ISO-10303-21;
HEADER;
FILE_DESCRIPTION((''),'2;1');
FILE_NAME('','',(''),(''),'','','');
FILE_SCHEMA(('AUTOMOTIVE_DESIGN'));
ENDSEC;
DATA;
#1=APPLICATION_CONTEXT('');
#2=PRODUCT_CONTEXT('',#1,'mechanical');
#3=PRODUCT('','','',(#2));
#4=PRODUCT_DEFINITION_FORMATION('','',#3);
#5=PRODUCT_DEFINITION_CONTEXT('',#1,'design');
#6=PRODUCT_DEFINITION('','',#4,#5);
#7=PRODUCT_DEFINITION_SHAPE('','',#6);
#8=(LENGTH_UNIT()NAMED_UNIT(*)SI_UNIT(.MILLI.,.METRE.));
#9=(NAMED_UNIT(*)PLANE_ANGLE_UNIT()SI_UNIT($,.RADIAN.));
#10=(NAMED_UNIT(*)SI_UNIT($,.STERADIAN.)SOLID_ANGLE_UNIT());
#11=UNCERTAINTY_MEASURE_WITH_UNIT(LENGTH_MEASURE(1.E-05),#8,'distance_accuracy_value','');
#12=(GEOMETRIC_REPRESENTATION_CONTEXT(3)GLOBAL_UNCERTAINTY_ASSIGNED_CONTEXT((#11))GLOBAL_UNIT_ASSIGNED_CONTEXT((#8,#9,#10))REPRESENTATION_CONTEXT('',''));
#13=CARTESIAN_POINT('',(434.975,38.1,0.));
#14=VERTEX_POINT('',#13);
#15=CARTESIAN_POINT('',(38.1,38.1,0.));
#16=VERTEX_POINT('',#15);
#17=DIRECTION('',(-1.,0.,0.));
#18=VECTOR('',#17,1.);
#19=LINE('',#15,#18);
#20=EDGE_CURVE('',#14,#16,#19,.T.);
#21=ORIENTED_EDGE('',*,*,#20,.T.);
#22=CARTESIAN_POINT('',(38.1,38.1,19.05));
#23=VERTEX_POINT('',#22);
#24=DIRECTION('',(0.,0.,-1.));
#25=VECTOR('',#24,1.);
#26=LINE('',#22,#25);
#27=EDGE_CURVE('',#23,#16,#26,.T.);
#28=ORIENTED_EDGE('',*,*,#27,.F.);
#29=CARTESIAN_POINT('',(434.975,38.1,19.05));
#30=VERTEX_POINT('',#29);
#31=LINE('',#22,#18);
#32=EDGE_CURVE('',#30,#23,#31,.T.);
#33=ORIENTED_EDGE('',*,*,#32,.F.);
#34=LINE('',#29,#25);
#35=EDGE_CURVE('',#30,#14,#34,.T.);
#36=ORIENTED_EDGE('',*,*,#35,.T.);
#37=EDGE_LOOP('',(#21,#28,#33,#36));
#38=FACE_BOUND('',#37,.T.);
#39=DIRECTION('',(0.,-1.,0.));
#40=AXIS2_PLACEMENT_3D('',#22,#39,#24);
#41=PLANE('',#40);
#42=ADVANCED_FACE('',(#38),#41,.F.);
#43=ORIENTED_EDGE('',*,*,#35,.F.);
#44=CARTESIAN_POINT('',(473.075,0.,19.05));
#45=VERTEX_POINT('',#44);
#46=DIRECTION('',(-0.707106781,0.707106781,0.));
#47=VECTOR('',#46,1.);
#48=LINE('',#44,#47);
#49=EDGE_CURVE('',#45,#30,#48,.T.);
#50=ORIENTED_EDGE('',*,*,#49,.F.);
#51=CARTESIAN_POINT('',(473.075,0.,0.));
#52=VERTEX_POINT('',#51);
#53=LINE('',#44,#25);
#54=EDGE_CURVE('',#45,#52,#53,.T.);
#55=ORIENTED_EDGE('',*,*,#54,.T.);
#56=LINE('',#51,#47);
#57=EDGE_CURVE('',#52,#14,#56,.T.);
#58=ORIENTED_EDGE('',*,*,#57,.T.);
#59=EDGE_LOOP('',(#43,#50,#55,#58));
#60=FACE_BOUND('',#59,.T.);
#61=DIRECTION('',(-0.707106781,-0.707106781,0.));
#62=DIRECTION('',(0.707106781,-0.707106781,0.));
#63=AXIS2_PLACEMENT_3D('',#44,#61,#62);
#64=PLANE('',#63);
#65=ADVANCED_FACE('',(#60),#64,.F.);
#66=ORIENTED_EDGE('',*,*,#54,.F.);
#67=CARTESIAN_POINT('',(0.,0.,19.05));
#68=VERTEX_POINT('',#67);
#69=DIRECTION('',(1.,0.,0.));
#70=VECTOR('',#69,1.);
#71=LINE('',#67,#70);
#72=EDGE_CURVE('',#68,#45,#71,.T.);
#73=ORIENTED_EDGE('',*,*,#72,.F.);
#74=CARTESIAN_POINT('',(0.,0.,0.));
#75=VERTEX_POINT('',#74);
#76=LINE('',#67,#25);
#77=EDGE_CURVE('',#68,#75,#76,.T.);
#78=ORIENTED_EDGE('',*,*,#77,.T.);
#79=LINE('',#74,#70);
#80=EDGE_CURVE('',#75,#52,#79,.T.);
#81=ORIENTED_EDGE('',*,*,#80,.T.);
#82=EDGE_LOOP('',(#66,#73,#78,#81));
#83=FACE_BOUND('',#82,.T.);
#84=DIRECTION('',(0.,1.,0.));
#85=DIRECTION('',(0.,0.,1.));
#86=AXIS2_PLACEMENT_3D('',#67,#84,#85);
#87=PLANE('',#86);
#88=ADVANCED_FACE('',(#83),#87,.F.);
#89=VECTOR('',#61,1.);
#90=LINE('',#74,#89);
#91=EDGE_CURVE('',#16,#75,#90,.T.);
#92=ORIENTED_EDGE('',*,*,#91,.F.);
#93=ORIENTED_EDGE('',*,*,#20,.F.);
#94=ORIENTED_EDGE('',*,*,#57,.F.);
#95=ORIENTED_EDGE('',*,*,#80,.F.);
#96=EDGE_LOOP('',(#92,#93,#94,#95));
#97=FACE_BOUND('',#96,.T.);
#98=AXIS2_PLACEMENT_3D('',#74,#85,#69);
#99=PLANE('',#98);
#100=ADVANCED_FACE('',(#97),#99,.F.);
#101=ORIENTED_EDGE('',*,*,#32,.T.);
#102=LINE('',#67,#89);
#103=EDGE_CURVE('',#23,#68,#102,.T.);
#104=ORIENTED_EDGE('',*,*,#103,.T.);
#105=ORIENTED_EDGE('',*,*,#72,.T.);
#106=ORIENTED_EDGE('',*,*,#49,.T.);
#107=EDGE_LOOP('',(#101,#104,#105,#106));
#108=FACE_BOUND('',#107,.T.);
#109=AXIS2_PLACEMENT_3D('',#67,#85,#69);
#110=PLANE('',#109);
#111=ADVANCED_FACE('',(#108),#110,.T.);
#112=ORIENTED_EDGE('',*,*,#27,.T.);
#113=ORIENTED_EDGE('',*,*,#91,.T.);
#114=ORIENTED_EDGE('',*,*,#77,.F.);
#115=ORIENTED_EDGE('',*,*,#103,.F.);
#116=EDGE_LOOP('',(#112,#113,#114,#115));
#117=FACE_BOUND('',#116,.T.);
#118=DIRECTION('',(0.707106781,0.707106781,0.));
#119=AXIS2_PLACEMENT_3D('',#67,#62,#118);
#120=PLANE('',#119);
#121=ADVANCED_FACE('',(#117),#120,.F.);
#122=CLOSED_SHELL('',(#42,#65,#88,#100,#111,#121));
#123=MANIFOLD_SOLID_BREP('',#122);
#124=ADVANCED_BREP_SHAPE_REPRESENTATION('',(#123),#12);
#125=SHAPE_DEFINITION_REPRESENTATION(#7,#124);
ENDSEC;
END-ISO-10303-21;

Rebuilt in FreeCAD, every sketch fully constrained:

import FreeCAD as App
import Part
import Sketcher
from FreeCAD import Vector
Q = App.Units.Quantity

doc = App.newDocument("Part")
body = doc.addObject("PartDesign::Body", "Body")

# Sketch on XY plane
sketch1 = doc.addObject("Sketcher::SketchObject", "Sketch")
body.addObject(sketch1)
sketch1.AttachmentSupport = (doc.XY_Plane, [""])
sketch1.MapMode = "FlatFace"
sketch1.addGeometry(Part.LineSegment(Vector(38, 38, 0), Vector(0, 0, 0)), False)
sketch1.addGeometry(Part.LineSegment(Vector(0, 0, 0), Vector(473, 0, 0)), False)
sketch1.addGeometry(Part.LineSegment(Vector(473, 0, 0), Vector(435, 38, 0)), False)
sketch1.addGeometry(Part.LineSegment(Vector(435, 38, 0), Vector(38, 38, 0)), False)
sketch1.addConstraint(Sketcher.Constraint("Coincident", 0, 2, 1, 1))
sketch1.addConstraint(Sketcher.Constraint("Coincident", 1, 2, 2, 1))
sketch1.addConstraint(Sketcher.Constraint("Coincident", 2, 2, 3, 1))
sketch1.addConstraint(Sketcher.Constraint("Coincident", 3, 2, 0, 1))
sketch1.addConstraint(Sketcher.Constraint("Horizontal", 1))
sketch1.addConstraint(Sketcher.Constraint("Horizontal", 3))
sketch1.addConstraint(Sketcher.Constraint("Coincident", 0, 2, -1, 1))
sketch1.addConstraint(Sketcher.Constraint("Perpendicular", 0, 2))
sketch1.addConstraint(Sketcher.Constraint("Equal", 0, 2))
sketch1.addConstraint(Sketcher.Constraint("DistanceY", -1, 1, 2, 2, Q("1.5 in")))
sketch1.addConstraint(Sketcher.Constraint("DistanceX", 1, 1, 1, 2, Q("18.625 in")))
pad1 = doc.addObject("PartDesign::Pad", "Pad")
body.addObject(pad1)
pad1.Profile = sketch1
pad1.Length = Q("0.75 in")

doc.recompute()
